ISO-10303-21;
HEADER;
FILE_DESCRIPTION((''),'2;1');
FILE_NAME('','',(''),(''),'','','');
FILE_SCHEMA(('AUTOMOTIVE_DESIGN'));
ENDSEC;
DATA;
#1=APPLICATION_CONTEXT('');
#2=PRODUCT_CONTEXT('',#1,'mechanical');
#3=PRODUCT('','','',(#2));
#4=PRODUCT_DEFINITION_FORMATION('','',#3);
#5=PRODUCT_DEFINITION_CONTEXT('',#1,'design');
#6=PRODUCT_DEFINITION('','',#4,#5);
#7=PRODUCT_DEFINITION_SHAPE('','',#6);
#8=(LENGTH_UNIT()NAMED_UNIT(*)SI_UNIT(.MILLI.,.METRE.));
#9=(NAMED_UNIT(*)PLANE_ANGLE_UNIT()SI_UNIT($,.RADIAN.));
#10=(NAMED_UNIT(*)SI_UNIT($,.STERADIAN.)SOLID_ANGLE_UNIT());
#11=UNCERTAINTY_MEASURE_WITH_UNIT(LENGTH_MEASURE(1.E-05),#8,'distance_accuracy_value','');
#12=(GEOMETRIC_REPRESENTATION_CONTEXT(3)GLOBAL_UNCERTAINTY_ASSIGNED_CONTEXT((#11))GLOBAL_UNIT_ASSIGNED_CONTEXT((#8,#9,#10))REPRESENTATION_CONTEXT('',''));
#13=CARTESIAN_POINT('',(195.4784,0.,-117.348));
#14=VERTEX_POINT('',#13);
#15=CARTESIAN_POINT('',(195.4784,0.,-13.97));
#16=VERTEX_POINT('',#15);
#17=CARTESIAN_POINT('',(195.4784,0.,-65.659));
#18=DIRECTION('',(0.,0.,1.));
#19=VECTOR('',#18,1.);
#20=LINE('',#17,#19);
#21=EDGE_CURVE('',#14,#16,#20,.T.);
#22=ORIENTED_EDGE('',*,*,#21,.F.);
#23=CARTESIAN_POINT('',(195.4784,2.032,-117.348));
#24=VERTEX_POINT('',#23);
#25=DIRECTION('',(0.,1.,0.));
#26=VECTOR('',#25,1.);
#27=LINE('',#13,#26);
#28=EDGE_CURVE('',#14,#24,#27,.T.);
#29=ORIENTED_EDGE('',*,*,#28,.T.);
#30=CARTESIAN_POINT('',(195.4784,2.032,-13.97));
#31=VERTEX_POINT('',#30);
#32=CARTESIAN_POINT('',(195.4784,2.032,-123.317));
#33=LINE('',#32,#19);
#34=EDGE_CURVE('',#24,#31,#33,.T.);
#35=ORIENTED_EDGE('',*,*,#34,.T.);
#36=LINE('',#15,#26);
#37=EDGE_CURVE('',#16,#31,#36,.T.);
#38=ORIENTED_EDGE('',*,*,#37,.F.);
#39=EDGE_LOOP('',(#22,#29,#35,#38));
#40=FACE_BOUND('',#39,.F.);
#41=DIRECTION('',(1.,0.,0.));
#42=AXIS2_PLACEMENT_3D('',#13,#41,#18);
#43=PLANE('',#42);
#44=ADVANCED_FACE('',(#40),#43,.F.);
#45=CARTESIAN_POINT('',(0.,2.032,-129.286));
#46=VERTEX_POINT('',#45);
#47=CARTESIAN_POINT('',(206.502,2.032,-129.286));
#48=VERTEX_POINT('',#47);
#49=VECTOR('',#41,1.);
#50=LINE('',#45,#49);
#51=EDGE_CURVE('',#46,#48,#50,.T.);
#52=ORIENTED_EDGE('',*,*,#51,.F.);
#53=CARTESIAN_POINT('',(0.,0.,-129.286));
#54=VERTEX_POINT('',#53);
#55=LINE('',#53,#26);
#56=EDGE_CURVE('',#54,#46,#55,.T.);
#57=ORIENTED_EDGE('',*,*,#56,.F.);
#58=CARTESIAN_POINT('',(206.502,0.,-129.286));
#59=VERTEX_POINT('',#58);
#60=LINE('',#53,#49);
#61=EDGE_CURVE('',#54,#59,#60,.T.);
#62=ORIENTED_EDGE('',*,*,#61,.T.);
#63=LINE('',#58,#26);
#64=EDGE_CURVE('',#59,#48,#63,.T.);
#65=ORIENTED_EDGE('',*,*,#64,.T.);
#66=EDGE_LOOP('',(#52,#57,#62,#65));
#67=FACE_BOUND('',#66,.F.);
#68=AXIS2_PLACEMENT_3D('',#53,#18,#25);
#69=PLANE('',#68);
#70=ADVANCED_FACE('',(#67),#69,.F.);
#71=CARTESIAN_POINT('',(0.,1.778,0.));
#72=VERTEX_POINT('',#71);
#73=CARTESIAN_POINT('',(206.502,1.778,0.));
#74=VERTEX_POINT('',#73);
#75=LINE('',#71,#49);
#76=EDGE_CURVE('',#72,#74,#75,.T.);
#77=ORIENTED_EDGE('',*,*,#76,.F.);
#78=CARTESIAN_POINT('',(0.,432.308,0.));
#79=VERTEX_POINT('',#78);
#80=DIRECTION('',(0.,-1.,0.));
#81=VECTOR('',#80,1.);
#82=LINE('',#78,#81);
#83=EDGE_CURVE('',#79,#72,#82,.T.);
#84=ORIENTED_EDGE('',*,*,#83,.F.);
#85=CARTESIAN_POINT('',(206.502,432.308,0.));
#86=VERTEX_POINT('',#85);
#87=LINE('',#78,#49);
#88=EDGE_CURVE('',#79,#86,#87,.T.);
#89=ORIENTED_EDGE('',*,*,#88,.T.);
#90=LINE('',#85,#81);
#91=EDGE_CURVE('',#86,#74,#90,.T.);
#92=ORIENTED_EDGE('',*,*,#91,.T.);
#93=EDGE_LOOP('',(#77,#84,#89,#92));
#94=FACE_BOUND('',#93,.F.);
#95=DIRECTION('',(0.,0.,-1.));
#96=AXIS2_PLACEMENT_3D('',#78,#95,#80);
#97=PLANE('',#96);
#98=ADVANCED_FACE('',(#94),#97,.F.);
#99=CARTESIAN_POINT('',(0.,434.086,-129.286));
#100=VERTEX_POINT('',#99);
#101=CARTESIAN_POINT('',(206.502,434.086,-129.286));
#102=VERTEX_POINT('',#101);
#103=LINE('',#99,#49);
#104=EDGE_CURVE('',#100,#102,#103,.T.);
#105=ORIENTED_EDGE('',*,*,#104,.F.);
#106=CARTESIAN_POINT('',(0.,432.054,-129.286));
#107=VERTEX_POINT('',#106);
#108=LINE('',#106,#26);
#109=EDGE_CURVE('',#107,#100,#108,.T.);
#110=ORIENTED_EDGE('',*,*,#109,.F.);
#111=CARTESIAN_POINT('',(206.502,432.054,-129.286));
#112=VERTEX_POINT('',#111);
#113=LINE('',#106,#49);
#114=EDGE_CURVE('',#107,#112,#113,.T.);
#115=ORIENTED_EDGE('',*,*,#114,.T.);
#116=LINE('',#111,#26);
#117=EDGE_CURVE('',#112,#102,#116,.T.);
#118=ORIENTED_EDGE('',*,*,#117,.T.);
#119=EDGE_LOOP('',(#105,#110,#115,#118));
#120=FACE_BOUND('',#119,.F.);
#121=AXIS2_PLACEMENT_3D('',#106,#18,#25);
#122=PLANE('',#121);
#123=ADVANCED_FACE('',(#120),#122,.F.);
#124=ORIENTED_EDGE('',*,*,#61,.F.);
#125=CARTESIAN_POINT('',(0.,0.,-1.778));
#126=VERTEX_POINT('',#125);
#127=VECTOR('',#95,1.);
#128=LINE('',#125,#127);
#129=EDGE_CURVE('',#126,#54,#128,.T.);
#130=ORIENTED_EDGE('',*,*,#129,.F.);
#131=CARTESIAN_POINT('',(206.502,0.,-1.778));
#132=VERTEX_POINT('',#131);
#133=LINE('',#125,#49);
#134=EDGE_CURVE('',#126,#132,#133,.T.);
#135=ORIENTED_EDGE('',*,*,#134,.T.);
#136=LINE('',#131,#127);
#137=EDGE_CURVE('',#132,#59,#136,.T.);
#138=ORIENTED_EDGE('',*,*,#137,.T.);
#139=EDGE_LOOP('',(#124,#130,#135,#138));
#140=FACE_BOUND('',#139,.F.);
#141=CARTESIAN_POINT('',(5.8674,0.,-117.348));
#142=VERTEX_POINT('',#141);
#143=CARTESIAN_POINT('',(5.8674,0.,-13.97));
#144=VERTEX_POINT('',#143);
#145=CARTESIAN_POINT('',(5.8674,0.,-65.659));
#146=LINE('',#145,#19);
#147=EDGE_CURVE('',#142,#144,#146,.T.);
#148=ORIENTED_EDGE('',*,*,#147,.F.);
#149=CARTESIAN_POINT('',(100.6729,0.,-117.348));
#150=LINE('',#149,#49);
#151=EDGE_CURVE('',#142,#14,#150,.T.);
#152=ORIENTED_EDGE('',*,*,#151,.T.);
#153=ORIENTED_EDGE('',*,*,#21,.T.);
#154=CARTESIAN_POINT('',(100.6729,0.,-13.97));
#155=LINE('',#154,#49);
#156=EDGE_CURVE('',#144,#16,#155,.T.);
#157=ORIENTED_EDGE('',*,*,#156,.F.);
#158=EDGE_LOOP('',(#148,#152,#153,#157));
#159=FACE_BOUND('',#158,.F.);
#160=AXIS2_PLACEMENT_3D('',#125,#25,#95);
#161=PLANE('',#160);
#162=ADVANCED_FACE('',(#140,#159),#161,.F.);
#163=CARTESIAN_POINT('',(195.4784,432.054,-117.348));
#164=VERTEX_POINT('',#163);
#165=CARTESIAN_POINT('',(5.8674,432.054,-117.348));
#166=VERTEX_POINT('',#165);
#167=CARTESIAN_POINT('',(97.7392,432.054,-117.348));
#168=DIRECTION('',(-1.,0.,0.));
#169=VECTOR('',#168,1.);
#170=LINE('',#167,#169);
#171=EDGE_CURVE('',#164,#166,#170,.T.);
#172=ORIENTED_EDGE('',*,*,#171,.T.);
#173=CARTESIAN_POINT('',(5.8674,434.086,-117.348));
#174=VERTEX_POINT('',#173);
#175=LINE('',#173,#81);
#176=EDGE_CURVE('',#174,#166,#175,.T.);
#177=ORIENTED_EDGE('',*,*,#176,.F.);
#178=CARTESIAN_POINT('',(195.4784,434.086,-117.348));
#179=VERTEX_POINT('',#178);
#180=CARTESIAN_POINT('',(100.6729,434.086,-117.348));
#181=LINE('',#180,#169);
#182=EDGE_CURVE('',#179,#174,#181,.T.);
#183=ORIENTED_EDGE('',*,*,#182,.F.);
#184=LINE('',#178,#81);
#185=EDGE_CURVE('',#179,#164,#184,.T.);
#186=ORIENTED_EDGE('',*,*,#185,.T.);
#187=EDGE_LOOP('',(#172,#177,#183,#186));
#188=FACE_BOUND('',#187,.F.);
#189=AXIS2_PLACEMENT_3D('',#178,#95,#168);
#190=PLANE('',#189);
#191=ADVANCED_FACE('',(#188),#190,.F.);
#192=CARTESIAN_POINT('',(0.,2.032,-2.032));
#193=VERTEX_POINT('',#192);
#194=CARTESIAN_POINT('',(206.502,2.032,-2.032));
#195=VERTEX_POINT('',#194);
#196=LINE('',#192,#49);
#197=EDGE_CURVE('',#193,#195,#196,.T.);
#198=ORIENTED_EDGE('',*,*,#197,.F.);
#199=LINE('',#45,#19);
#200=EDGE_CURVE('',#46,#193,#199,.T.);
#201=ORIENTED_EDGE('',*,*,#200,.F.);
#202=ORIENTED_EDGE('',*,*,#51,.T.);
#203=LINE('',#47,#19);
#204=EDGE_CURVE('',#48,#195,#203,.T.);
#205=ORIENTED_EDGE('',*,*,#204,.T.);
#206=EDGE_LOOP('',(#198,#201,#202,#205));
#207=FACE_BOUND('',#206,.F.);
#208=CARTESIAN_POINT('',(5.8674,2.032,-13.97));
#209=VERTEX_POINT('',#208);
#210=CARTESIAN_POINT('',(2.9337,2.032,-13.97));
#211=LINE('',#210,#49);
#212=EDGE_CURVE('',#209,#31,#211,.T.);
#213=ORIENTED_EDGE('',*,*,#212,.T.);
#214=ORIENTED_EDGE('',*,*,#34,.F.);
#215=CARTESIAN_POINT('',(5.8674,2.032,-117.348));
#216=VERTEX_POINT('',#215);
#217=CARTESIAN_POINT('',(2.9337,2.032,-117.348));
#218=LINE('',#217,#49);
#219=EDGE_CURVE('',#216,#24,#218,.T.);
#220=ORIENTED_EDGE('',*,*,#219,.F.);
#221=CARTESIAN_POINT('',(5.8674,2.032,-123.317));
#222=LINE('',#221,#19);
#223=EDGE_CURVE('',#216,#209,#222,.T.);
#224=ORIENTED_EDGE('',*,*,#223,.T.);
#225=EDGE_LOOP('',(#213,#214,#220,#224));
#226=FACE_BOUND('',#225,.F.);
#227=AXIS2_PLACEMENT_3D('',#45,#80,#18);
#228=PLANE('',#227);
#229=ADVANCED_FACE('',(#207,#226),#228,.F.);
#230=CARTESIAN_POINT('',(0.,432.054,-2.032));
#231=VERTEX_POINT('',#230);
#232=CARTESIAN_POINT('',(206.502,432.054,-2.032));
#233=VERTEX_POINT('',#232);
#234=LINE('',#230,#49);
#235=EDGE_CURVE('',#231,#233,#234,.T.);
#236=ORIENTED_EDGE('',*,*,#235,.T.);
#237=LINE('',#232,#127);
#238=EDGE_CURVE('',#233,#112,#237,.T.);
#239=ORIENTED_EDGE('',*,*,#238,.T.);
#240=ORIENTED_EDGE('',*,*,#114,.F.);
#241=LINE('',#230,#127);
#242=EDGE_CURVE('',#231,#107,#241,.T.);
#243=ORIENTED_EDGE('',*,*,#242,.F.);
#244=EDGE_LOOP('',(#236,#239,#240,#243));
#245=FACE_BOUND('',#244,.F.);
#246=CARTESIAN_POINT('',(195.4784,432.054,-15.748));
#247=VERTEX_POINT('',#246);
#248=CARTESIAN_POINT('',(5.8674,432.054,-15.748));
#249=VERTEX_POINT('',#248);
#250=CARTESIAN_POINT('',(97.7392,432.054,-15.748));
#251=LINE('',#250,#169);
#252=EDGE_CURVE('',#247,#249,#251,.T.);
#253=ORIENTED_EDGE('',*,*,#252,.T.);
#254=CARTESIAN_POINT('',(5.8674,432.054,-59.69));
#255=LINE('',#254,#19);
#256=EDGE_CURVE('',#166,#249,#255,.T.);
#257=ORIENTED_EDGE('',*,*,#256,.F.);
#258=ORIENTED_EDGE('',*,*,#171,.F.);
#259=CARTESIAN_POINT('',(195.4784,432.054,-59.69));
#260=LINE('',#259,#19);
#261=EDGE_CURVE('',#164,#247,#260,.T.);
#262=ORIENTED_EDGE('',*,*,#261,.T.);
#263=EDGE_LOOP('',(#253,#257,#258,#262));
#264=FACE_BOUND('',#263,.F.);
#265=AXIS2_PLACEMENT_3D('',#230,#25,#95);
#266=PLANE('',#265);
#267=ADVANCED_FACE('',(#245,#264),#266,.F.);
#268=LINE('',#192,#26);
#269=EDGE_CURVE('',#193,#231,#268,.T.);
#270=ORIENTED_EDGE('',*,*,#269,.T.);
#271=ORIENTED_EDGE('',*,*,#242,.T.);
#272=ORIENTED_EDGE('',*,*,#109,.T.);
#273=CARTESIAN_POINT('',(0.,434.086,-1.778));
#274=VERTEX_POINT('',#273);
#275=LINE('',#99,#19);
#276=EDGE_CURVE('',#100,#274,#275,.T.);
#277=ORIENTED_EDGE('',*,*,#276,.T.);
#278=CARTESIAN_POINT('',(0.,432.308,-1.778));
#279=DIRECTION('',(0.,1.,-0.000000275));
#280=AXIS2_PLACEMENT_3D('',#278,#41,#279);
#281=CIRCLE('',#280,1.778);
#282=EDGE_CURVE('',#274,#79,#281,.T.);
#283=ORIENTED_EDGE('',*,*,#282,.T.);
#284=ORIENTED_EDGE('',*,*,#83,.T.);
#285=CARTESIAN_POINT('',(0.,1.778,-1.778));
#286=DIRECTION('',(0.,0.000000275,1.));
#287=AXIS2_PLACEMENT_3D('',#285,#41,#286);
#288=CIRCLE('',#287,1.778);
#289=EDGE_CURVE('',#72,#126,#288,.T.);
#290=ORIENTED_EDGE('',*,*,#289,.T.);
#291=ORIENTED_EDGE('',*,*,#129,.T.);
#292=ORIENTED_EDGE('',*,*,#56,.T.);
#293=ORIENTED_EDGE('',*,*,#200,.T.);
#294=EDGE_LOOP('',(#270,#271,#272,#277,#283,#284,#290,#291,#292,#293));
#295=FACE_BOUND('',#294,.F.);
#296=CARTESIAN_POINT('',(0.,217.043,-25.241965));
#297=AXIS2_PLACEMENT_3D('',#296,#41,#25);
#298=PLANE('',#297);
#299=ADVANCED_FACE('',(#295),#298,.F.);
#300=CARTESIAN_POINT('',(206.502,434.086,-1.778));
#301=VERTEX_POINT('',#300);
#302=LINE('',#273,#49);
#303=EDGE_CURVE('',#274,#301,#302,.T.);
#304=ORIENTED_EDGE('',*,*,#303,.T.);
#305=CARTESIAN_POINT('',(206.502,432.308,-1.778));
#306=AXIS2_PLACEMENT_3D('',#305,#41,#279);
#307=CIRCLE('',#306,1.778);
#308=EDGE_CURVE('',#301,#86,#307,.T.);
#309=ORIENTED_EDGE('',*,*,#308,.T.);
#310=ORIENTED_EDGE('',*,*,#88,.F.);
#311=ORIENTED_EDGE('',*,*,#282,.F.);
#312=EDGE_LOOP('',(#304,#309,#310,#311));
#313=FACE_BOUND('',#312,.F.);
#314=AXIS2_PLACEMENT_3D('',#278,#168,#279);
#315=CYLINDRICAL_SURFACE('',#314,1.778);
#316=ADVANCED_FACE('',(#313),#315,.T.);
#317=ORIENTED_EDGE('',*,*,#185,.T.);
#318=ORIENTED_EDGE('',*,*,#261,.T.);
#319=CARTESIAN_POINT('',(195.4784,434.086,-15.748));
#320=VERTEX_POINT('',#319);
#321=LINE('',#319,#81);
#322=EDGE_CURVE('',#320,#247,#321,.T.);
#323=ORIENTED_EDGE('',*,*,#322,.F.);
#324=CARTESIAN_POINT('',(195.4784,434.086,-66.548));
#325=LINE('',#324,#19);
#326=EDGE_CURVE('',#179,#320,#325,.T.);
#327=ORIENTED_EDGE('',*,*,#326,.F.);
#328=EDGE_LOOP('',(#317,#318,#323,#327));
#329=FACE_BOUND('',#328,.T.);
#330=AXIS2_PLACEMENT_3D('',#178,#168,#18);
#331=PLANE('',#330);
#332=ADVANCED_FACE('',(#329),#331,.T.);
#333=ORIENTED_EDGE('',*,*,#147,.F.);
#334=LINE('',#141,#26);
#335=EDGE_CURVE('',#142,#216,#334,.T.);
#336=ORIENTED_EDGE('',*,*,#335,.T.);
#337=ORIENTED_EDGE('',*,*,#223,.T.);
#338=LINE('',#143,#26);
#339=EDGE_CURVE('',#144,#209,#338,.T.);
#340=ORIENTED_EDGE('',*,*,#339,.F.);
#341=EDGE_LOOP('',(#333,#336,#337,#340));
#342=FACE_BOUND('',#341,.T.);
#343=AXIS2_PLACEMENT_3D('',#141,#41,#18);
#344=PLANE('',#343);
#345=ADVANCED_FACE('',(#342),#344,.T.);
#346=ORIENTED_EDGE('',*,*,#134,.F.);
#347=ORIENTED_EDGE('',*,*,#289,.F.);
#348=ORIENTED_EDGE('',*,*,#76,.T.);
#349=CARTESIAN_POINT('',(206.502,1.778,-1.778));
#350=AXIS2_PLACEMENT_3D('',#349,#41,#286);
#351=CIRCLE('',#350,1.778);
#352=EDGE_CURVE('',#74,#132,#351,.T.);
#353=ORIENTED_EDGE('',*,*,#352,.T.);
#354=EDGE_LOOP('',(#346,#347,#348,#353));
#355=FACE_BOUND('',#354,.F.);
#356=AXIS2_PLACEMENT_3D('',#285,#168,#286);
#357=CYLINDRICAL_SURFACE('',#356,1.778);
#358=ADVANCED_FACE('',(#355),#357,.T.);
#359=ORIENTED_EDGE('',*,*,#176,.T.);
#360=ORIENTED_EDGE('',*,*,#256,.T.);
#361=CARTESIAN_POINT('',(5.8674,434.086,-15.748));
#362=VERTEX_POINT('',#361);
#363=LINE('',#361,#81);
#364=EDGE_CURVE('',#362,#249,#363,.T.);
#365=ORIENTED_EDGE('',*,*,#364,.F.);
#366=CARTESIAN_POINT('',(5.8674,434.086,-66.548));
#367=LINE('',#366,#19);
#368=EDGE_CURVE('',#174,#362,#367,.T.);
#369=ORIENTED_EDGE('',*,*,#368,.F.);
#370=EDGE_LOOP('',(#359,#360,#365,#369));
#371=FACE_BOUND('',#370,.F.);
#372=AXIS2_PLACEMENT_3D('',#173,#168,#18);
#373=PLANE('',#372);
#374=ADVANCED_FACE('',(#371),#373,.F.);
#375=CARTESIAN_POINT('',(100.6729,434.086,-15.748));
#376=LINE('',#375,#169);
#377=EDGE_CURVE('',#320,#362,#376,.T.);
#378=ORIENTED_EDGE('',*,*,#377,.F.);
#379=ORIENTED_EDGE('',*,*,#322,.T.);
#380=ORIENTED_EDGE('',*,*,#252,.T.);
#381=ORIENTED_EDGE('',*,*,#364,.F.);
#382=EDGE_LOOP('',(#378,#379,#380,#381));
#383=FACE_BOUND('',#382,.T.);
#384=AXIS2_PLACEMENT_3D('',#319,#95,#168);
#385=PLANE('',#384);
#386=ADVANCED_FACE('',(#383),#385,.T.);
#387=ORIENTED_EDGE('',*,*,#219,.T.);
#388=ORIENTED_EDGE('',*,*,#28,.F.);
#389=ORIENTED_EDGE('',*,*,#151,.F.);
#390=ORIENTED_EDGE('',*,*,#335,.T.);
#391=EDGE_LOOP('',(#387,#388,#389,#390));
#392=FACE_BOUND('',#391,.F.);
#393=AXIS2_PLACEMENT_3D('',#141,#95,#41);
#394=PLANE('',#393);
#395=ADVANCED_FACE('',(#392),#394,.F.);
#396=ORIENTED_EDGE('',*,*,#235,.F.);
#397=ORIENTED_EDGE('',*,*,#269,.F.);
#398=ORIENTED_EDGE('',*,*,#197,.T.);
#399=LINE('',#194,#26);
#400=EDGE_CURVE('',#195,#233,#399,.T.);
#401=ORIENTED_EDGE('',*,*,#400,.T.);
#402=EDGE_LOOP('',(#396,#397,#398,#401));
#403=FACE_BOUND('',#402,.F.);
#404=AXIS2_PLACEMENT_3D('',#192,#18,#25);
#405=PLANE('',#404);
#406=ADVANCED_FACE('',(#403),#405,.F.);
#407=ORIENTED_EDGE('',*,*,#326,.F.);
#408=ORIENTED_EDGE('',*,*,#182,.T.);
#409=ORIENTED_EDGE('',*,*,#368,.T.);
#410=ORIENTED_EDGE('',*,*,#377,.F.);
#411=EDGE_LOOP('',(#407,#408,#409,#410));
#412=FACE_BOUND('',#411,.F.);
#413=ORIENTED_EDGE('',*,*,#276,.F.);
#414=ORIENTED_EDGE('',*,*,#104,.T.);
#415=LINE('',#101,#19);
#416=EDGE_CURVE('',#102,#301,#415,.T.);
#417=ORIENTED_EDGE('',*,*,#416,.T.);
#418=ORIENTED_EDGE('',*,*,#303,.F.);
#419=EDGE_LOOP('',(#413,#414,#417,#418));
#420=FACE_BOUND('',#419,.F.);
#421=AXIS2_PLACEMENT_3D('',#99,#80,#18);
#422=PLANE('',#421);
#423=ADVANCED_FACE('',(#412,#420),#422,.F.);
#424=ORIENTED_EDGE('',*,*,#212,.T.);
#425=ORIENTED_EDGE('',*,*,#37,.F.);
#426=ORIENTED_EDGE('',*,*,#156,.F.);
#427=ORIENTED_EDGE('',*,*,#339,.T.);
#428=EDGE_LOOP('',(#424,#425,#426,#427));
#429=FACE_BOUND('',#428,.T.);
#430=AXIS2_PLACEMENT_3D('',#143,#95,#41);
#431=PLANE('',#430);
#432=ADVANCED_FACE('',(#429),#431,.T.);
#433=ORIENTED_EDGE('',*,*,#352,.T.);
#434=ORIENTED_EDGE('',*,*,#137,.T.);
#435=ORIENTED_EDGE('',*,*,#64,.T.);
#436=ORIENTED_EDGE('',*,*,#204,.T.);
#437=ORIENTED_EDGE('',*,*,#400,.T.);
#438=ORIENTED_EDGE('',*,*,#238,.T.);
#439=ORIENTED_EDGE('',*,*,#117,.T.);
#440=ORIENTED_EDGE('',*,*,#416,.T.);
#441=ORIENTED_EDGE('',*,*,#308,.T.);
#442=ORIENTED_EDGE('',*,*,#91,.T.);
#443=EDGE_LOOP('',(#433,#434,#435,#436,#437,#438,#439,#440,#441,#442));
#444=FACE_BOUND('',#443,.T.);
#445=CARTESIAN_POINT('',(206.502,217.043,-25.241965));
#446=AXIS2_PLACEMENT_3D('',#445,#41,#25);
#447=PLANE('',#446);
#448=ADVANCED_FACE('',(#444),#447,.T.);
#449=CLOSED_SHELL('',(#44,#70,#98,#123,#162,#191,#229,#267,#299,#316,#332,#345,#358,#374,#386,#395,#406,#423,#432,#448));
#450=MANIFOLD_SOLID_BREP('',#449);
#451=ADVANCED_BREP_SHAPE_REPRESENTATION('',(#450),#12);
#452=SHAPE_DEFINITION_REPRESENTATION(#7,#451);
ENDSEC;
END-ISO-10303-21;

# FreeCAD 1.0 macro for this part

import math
import FreeCAD as App
import Part
import Sketcher
Q = App.Units.Quantity

doc = App.newDocument("Part")
body = doc.addObject("PartDesign::Body", "Body")

sketch1 = body.newObject("Sketcher::SketchObject", "Sketch")
sketch1.AttachmentSupport = (doc.getObject("YZ_Plane"), [""])
sketch1.MapMode = "FlatFace"
sketch1.addGeometry([
    Part.LineSegment(App.Vector(432.3, 0, 0), App.Vector(1.8, 0, 0)),
    Part.ArcOfCircle(Part.Circle(App.Vector(1.8, -1.8, 0), App.Vector(0, 0, 1), 1.8), math.radians(90), math.radians(180)),
    Part.LineSegment(App.Vector(0, -1.8, 0), App.Vector(0, -129.3, 0)),
    Part.LineSegment(App.Vector(0, -129.3, 0), App.Vector(2, -129.3, 0)),
    Part.LineSegment(App.Vector(2, -129.3, 0), App.Vector(2, -2, 0)),
    Part.LineSegment(App.Vector(2, -2, 0), App.Vector(432.1, -2, 0)),
    Part.LineSegment(App.Vector(432.1, -2, 0), App.Vector(432.1, -129.3, 0)),
    Part.LineSegment(App.Vector(432.1, -129.3, 0), App.Vector(434.1, -129.3, 0)),
    Part.LineSegment(App.Vector(434.1, -129.3, 0), App.Vector(434.1, -1.8, 0)),
    Part.ArcOfCircle(Part.Circle(App.Vector(432.3, -1.8, 0), App.Vector(0, 0, 1), 1.8), math.radians(0), math.radians(90)),
], False)
sketch1.addConstraint([
    Sketcher.Constraint("Tangent", 0, 2, 1, 1),
    Sketcher.Constraint("Tangent", 1, 2, 2, 1),
    Sketcher.Constraint("Coincident", 2, 2, 3, 1),
    Sketcher.Constraint("Coincident", 3, 2, 4, 1),
    Sketcher.Constraint("Coincident", 4, 2, 5, 1),
    Sketcher.Constraint("Coincident", 5, 2, 6, 1),
    Sketcher.Constraint("Coincident", 6, 2, 7, 1),
    Sketcher.Constraint("Coincident", 7, 2, 8, 1),
    Sketcher.Constraint("Tangent", 8, 2, 9, 1),
    Sketcher.Constraint("Tangent", 9, 2, 0, 1),
    Sketcher.Constraint("Horizontal", 0),
    Sketcher.Constraint("Vertical", 2),
    Sketcher.Constraint("Horizontal", 3),
    Sketcher.Constraint("Vertical", 4),
    Sketcher.Constraint("Horizontal", 5),
    Sketcher.Constraint("Vertical", 6),
    Sketcher.Constraint("Horizontal", 7),
    Sketcher.Constraint("Vertical", 8),
    Sketcher.Constraint("Equal", 1, 9),
    Sketcher.Constraint("PointOnObject", 0, 2, -1),
    Sketcher.Constraint("PointOnObject", 1, 2, -2),
    Sketcher.Constraint("Horizontal", 3, 2, 6, 2),
    Sketcher.Constraint("Equal", 3, 7),
    Sketcher.Constraint("Radius", 1, Q("0.07 in")),
    Sketcher.Constraint("DistanceX", 0, 2, 0, 1, Q("16.95 in")),
    Sketcher.Constraint("DistanceX", 3, 1, 3, 2, Q("0.08 in")),
    Sketcher.Constraint("DistanceY", 2, 2, 2, 1, Q("5.02 in")),
    Sketcher.Constraint("DistanceY", 4, 1, 4, 2, Q("5.01 in")),
])
pad1 = body.newObject("PartDesign::Pad", "Pad")
pad1.Profile = sketch1
pad1.Length = Q("8.13 in")

sketch2 = body.newObject("Sketcher::SketchObject", "Sketch001")
sketch2.AttachmentSupport = (doc.getObject("XZ_Plane"), [""])
sketch2.MapMode = "FlatFace"
sketch2.addGeometry([
    Part.LineSegment(App.Vector(6, -14, 0), App.Vector(6, -117, 0)),
    Part.LineSegment(App.Vector(6, -117, 0), App.Vector(195, -117, 0)),
    Part.LineSegment(App.Vector(195, -117, 0), App.Vector(195, -14, 0)),
    Part.LineSegment(App.Vector(195, -14, 0), App.Vector(6, -14, 0)),
], False)
sketch2.addConstraint([
    Sketcher.Constraint("Coincident", 0, 2, 1, 1),
    Sketcher.Constraint("Coincident", 1, 2, 2, 1),
    Sketcher.Constraint("Coincident", 2, 2, 3, 1),
    Sketcher.Constraint("Coincident", 3, 2, 0, 1),
    Sketcher.Constraint("Vertical", 0),
    Sketcher.Constraint("Horizontal", 1),
    Sketcher.Constraint("Vertical", 2),
    Sketcher.Constraint("Horizontal", 3),
    Sketcher.Constraint("DistanceY", 0, 2, 0, 1, Q("4.07 in")),
    Sketcher.Constraint("DistanceX", 1, 1, 1, 2, Q("7.465 in")),
    Sketcher.Constraint("DistanceY", 0, 2, -1, 1, Q("4.62 in")),
    Sketcher.Constraint("DistanceX", -1, 1, 0, 2, Q("0.231 in")),
])
pocket1 = body.newObject("PartDesign::Pocket", "Pocket")
pocket1.Profile = sketch2
pocket1.Length = Q("1 in")

sketch3 = body.newObject("Sketcher::SketchObject", "Sketch002")
sketch3.AttachmentSupport = (doc.getObject("XZ_Plane"), [""])
sketch3.MapMode = "FlatFace"
sketch3.AttachmentOffset = App.Placement(App.Vector(0, 0, -17.09 * 25.4), App.Rotation())
sketch3.addGeometry([
    Part.LineSegment(App.Vector(195, -16, 0), App.Vector(195, -117, 0)),
    Part.LineSegment(App.Vector(195, -117, 0), App.Vector(6, -117, 0)),
    Part.LineSegment(App.Vector(6, -117, 0), App.Vector(6, -16, 0)),
    Part.LineSegment(App.Vector(6, -16, 0), App.Vector(195, -16, 0)),
], False)
sketch3.addConstraint([
    Sketcher.Constraint("Coincident", 0, 2, 1, 1),
    Sketcher.Constraint("Coincident", 1, 2, 2, 1),
    Sketcher.Constraint("Coincident", 2, 2, 3, 1),
    Sketcher.Constraint("Coincident", 3, 2, 0, 1),
    Sketcher.Constraint("Vertical", 0),
    Sketcher.Constraint("Horizontal", 1),
    Sketcher.Constraint("Vertical", 2),
    Sketcher.Constraint("Horizontal", 3),
    Sketcher.Constraint("DistanceY", 0, 2, 0, 1, Q("4 in")),
    Sketcher.Constraint("DistanceX", 1, 2, 1, 1, Q("7.465 in")),
    Sketcher.Constraint("DistanceY", 0, 2, -1, 1, Q("4.62 in")),
    Sketcher.Constraint("DistanceX", -1, 1, 0, 2, Q("7.696 in")),
])
pocket2 = body.newObject("PartDesign::Pocket", "Pocket001")
pocket2.Profile = sketch3
pocket2.Length = Q("1 in")
pocket2.Reversed = True

doc.recompute()
